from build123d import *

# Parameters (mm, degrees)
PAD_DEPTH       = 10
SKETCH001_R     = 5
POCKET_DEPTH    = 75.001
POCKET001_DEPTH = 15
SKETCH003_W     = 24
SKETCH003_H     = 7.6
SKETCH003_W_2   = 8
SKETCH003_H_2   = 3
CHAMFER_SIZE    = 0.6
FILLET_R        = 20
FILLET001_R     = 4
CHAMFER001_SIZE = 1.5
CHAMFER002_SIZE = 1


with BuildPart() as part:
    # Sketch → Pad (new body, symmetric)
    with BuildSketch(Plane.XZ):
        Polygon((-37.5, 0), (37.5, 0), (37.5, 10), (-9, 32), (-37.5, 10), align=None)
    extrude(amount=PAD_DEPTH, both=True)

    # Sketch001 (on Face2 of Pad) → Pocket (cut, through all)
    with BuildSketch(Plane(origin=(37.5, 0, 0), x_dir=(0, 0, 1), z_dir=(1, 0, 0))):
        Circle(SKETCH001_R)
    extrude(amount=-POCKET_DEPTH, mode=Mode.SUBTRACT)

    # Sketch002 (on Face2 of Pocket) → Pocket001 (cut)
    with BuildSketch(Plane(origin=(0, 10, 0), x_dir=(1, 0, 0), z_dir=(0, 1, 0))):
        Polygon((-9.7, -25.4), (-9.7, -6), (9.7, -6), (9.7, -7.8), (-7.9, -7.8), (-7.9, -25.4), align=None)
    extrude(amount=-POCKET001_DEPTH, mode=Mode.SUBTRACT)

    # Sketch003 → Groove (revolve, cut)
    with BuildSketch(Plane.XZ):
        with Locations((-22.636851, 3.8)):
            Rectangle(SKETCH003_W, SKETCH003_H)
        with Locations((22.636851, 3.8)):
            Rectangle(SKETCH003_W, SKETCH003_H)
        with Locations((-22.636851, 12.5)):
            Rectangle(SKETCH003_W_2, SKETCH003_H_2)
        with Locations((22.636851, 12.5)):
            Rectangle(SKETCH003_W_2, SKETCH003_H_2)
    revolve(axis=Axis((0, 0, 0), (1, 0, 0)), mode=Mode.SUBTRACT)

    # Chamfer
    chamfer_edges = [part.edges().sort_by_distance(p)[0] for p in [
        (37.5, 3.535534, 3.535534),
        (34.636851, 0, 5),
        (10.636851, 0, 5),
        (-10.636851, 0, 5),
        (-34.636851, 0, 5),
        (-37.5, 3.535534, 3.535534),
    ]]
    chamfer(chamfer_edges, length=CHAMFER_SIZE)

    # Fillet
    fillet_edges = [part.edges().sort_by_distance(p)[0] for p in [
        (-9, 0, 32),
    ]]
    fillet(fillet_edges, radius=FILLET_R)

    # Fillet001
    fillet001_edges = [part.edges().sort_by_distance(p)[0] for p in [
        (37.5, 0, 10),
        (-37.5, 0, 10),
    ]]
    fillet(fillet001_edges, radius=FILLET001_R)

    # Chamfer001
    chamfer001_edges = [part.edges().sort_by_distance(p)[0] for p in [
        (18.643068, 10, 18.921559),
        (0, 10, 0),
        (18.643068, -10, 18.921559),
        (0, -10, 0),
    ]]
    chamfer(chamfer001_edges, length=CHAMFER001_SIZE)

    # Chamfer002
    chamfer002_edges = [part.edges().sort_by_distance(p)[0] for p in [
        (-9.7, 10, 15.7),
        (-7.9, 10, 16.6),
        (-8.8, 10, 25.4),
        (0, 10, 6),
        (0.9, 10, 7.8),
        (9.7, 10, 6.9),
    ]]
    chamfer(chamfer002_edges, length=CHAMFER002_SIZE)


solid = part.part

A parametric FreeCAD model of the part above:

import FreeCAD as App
import Part
import Sketcher
from FreeCAD import Vector


def edges_at(feature, points):
    """Names of the edges that pass closest to the given points."""
    edges = feature.Shape.Edges
    near = lambda p: min(range(len(edges)), key=lambda i: edges[i].distToShape(Part.Vertex(*p))[0])
    return sorted({f"Edge{near(p) + 1}" for p in points})

doc = App.newDocument("Part")
params = doc.addObject("Spreadsheet::Sheet", "Params")
for row, (alias, value) in enumerate([
    ("sketch1_width", "75 mm"),
    ("sketch1_height", "10 mm"),
    ("pad1_length", "20 mm"),
    ("sketch2_diameter", "10 mm"),
    ("sketch3_width", "1.8 mm"),
    ("sketch3_width2", "17.6 mm"),
    ("pocket2_length", "15 mm"),
    ("sketch4_width", "24 mm"),
    ("sketch4_width2", "8 mm"),
    ("sketch4_height", "3 mm"),
    ("sketch4_height2", "7.6 mm"),
    ("groove_angle", "360 deg"),
    ("chamfer_size", "0.6 mm"),
    ("fillet_radius", "20 mm"),
    ("fillet2_radius", "4 mm"),
    ("chamfer2_size", "1.5 mm"),
    ("chamfer3_size", "1 mm"),
], start=1):
    params.set(f"A{row}", alias)
    params.set(f"B{row}", "=" + value)
    params.setAlias(f"B{row}", alias)

body = doc.addObject("PartDesign::Body", "Body")

sketch1 = doc.addObject("Sketcher::SketchObject", "Sketch")
body.addObject(sketch1)
sketch1.AttachmentSupport = (doc.XZ_Plane, [""])
sketch1.MapMode = "FlatFace"
sketch1.addGeometry([
    Part.LineSegment(Vector(-38, 0, 0), Vector(38, 0, 0)),
    Part.LineSegment(Vector(38, 0, 0), Vector(38, 10, 0)),
    Part.LineSegment(Vector(38, 10, 0), Vector(-9, 32, 0)),
    Part.LineSegment(Vector(-9, 32, 0), Vector(-38, 10, 0)),
    Part.LineSegment(Vector(-38, 10, 0), Vector(-38, 0, 0)),
], False)
sketch1.addConstraint([
    Sketcher.Constraint("Coincident", 0, 2, 1, 1),
    Sketcher.Constraint("Coincident", 1, 2, 2, 1),
    Sketcher.Constraint("Coincident", 2, 2, 3, 1),
    Sketcher.Constraint("Coincident", 3, 2, 4, 1),
    Sketcher.Constraint("Coincident", 4, 2, 0, 1),
    Sketcher.Constraint("Horizontal", 0),
    Sketcher.Constraint("Vertical", 1),
    Sketcher.Constraint("Vertical", 4),
    Sketcher.Constraint("Symmetric", 0, 2, 4, 2, -1, 1),
    Sketcher.Constraint("Horizontal", 1, 2, 3, 2),
    Sketcher.Constraint("DistanceX", 0, 1, 0, 2, 75.0),
    Sketcher.Constraint("DistanceY", 1, 1, 1, 2, 10.0),
    Sketcher.Constraint("DistanceX", 2, 2, -1, 1, 9.0),
    Sketcher.Constraint("DistanceY", -1, 1, 2, 2, 32.0),
])
sketch1.setExpression("Constraints[10]", "Params.sketch1_width")
sketch1.setExpression("Constraints[11]", "Params.sketch1_height")
pad1 = doc.addObject("PartDesign::Pad", "Pad")
body.addObject(pad1)
pad1.Profile = sketch1
pad1.setExpression("Length", "Params.pad1_length")
pad1.Midplane = True

sketch2 = doc.addObject("Sketcher::SketchObject", "Sketch001")
body.addObject(sketch2)
sketch2.AttachmentSupport = (doc.YZ_Plane, [""])
sketch2.MapMode = "FlatFace"
sketch2.AttachmentOffset = App.Placement(Vector(0, 0, 37.5), App.Rotation())
sketch2.addGeometry(Part.Circle(Vector(0, 0, 0), Vector(0, 0, 1), 5), False)
sketch2.addConstraint([
    Sketcher.Constraint("Coincident", 0, 3, -1, 1),
    Sketcher.Constraint("Diameter", 0, 10.0),
])
sketch2.setExpression("Constraints[1]", "Params.sketch2_diameter")
pocket1 = doc.addObject("PartDesign::Pocket", "Pocket")
body.addObject(pocket1)
pocket1.Profile = sketch2
pocket1.Type = "ThroughAll"

sketch3 = doc.addObject("Sketcher::SketchObject", "Sketch002")
body.addObject(sketch3)
sketch3.AttachmentSupport = (doc.XZ_Plane, [""])
sketch3.MapMode = "FlatFace"
sketch3.AttachmentOffset = App.Placement(Vector(0, 0, -10), App.Rotation())
sketch3.addGeometry([
    Part.LineSegment(Vector(-9.7, 6, 0), Vector(-9.7, 25.4, 0)),
    Part.LineSegment(Vector(-9.7, 25.4, 0), Vector(-7.9, 25.4, 0)),
    Part.LineSegment(Vector(-7.9, 25.4, 0), Vector(-7.9, 7.8, 0)),
    Part.LineSegment(Vector(-7.9, 7.8, 0), Vector(9.7, 7.8, 0)),
    Part.LineSegment(Vector(9.7, 7.8, 0), Vector(9.7, 6, 0)),
    Part.LineSegment(Vector(9.7, 6, 0), Vector(-9.7, 6, 0)),
], False)
sketch3.addConstraint([
    Sketcher.Constraint("Coincident", 0, 2, 1, 1),
    Sketcher.Constraint("Coincident", 1, 2, 2, 1),
    Sketcher.Constraint("Coincident", 2, 2, 3, 1),
    Sketcher.Constraint("Coincident", 3, 2, 4, 1),
    Sketcher.Constraint("Coincident", 4, 2, 5, 1),
    Sketcher.Constraint("Coincident", 5, 2, 0, 1),
    Sketcher.Constraint("Vertical", 0),
    Sketcher.Constraint("Horizontal", 1),
    Sketcher.Constraint("Vertical", 2),
    Sketcher.Constraint("Horizontal", 3),
    Sketcher.Constraint("Vertical", 4),
    Sketcher.Constraint("Horizontal", 5),
    Sketcher.Constraint("Equal", 5, 0),
    Sketcher.Constraint("Equal", 3, 2),
    Sketcher.Constraint("DistanceX", 1, 1, 1, 2, 1.8),
    Sketcher.Constraint("DistanceX", 3, 1, 3, 2, 17.6),
    Sketcher.Constraint("DistanceY", -1, 1, 4, 2, 6.0),
    Sketcher.Constraint("DistanceX", 0, 2, -1, 1, 9.7),
])
sketch3.setExpression("Constraints[14]", "Params.sketch3_width")
sketch3.setExpression("Constraints[15]", "Params.sketch3_width2")
pocket2 = doc.addObject("PartDesign::Pocket", "Pocket001")
body.addObject(pocket2)
pocket2.Profile = sketch3
pocket2.setExpression("Length", "Params.pocket2_length")
pocket2.Reversed = True

sketch4 = doc.addObject("Sketcher::SketchObject", "Sketch003")
body.addObject(sketch4)
sketch4.AttachmentSupport = (doc.XZ_Plane, [""])
sketch4.MapMode = "FlatFace"
sketch4.addGeometry([
    Part.LineSegment(Vector(-34.6, 7.6, 0), Vector(-34.6, 0, 0)),
    Part.LineSegment(Vector(-34.6, 0, 0), Vector(-10.6, 0, 0)),
    Part.LineSegment(Vector(-10.6, 0, 0), Vector(-10.6, 7.6, 0)),
    Part.LineSegment(Vector(-10.6, 7.6, 0), Vector(-34.6, 7.6, 0)),
    Part.LineSegment(Vector(10.6, 7.6, 0), Vector(10.6, 0, 0)),
    Part.LineSegment(Vector(10.6, 0, 0), Vector(34.6, 0, 0)),
    Part.LineSegment(Vector(34.6, 0, 0), Vector(34.6, 7.6, 0)),
    Part.LineSegment(Vector(34.6, 7.6, 0), Vector(10.6, 7.6, 0)),
    Part.LineSegment(Vector(-26.6, 14, 0), Vector(-26.6, 11, 0)),
    Part.LineSegment(Vector(-26.6, 11, 0), Vector(-18.6, 11, 0)),
    Part.LineSegment(Vector(-18.6, 11, 0), Vector(-18.6, 14, 0)),
    Part.LineSegment(Vector(-18.6, 14, 0), Vector(-26.6, 14, 0)),
    Part.LineSegment(Vector(18.6, 14, 0), Vector(18.6, 11, 0)),
    Part.LineSegment(Vector(18.6, 11, 0), Vector(26.6, 11, 0)),
    Part.LineSegment(Vector(26.6, 11, 0), Vector(26.6, 14, 0)),
    Part.LineSegment(Vector(26.6, 14, 0), Vector(18.6, 14, 0)),
], False)
sketch4.addConstraint([
    Sketcher.Constraint("Coincident", 0, 2, 1, 1),
    Sketcher.Constraint("Coincident", 1, 2, 2, 1),
    Sketcher.Constraint("Coincident", 2, 2, 3, 1),
    Sketcher.Constraint("Coincident", 3, 2, 0, 1),
    Sketcher.Constraint("Coincident", 4, 2, 5, 1),
    Sketcher.Constraint("Coincident", 5, 2, 6, 1),
    Sketcher.Constraint("Coincident", 6, 2, 7, 1),
    Sketcher.Constraint("Coincident", 7, 2, 4, 1),
    Sketcher.Constraint("Coincident", 8, 2, 9, 1),
    Sketcher.Constraint("Coincident", 9, 2, 10, 1),
    Sketcher.Constraint("Coincident", 10, 2, 11, 1),
    Sketcher.Constraint("Coincident", 11, 2, 8, 1),
    Sketcher.Constraint("Coincident", 12, 2, 13, 1),
    Sketcher.Constraint("Coincident", 13, 2, 14, 1),
    Sketcher.Constraint("Coincident", 14, 2, 15, 1),
    Sketcher.Constraint("Coincident", 15, 2, 12, 1),
    Sketcher.Constraint("Vertical", 0),
    Sketcher.Constraint("Horizontal", 1),
    Sketcher.Constraint("Vertical", 2),
    Sketcher.Constraint("Horizontal", 3),
    Sketcher.Constraint("Vertical", 4),
    Sketcher.Constraint("Horizontal", 5),
    Sketcher.Constraint("Vertical", 6),
    Sketcher.Constraint("Horizontal", 7),
    Sketcher.Constraint("Vertical", 8),
    Sketcher.Constraint("Horizontal", 9),
    Sketcher.Constraint("Vertical", 10),
    Sketcher.Constraint("Horizontal", 11),
    Sketcher.Constraint("Vertical", 12),
    Sketcher.Constraint("Horizontal", 13),
    Sketcher.Constraint("Vertical", 14),
    Sketcher.Constraint("Horizontal", 15),
    Sketcher.Constraint("Symmetric", 1, 2, 4, 2, -1, 1),
    Sketcher.Constraint("Symmetric", 0, 2, 5, 2, -2),
    Sketcher.Constraint("Symmetric", 9, 2, 12, 2, -2),
    Sketcher.Constraint("Symmetric", 11, 2, 14, 2, -2),
    Sketcher.Constraint("Horizontal", 3, 2, 6, 2),
    Sketcher.Constraint("DistanceX", 1, 1, 1, 2, 24.0),
    Sketcher.Constraint("DistanceX", 9, 1, 9, 2, 8.0),
    Sketcher.Constraint("DistanceY", 8, 2, 8, 1, 3.0),
    Sketcher.Constraint("DistanceY", 0, 2, 0, 1, 7.6),
    Sketcher.Constraint("DistanceY", -1, 1, 8, 2, 11.0),
    Sketcher.Constraint("DistanceX", 3, 2, 8, 2, 8.0),
    Sketcher.Constraint("DistanceX", 1, 2, 4, 2, 21.273702),
])
sketch4.setExpression("Constraints[37]", "Params.sketch4_width")
sketch4.setExpression("Constraints[38]", "Params.sketch4_width2")
sketch4.setExpression("Constraints[39]", "Params.sketch4_height")
sketch4.setExpression("Constraints[40]", "Params.sketch4_height2")
groove = doc.addObject("PartDesign::Groove", "Groove")
body.addObject(groove)
groove.Profile = sketch4
groove.ReferenceAxis = (sketch4, ["H_Axis"])
groove.setExpression("Angle", "Params.groove_angle")
doc.recompute()

chamfer = doc.addObject("PartDesign::Chamfer", "Chamfer")
body.addObject(chamfer)
chamfer.Base = (groove, edges_at(groove, [
    (37.5, 0, 5),
    (34.637, 0, 5),
    (10.637, 0, 5),
    (-10.637, 0, 5),
    (-34.637, 0, 5),
    (-37.5, 0, 5),
]))
chamfer.setExpression("Size", "Params.chamfer_size")
doc.recompute()

fillet = doc.addObject("PartDesign::Fillet", "Fillet")
body.addObject(fillet)
fillet.Base = (chamfer, edges_at(chamfer, [(-9, 0, 32)]))
fillet.setExpression("Radius", "Params.fillet_radius")
doc.recompute()

fillet2 = doc.addObject("PartDesign::Fillet", "Fillet001")
body.addObject(fillet2)
fillet2.Base = (fillet, edges_at(fillet, [(37.5, 0, 10), (-37.5, 0, 10)]))
fillet2.setExpression("Radius", "Params.fillet2_radius")
doc.recompute()

chamfer2 = doc.addObject("PartDesign::Chamfer", "Chamfer001")
body.addObject(chamfer2)
chamfer2.Base = (fillet2, edges_at(fillet2, [
    (18.643, 10, 18.922),
    (0, 10, 0),
    (18.643, -10, 18.922),
    (0, -10, 0),
]))
chamfer2.setExpression("Size", "Params.chamfer2_size")
doc.recompute()

chamfer3 = doc.addObject("PartDesign::Chamfer", "Chamfer002")
body.addObject(chamfer3)
chamfer3.Base = (chamfer2, edges_at(chamfer2, [
    (-9.7, 10, 15.7),
    (-7.9, 10, 16.6),
    (-8.8, 10, 25.4),
    (0, 10, 6),
    (0.9, 10, 7.8),
    (9.7, 10, 6.9),
]))
chamfer3.setExpression("Size", "Params.chamfer3_size")

doc.recompute()
